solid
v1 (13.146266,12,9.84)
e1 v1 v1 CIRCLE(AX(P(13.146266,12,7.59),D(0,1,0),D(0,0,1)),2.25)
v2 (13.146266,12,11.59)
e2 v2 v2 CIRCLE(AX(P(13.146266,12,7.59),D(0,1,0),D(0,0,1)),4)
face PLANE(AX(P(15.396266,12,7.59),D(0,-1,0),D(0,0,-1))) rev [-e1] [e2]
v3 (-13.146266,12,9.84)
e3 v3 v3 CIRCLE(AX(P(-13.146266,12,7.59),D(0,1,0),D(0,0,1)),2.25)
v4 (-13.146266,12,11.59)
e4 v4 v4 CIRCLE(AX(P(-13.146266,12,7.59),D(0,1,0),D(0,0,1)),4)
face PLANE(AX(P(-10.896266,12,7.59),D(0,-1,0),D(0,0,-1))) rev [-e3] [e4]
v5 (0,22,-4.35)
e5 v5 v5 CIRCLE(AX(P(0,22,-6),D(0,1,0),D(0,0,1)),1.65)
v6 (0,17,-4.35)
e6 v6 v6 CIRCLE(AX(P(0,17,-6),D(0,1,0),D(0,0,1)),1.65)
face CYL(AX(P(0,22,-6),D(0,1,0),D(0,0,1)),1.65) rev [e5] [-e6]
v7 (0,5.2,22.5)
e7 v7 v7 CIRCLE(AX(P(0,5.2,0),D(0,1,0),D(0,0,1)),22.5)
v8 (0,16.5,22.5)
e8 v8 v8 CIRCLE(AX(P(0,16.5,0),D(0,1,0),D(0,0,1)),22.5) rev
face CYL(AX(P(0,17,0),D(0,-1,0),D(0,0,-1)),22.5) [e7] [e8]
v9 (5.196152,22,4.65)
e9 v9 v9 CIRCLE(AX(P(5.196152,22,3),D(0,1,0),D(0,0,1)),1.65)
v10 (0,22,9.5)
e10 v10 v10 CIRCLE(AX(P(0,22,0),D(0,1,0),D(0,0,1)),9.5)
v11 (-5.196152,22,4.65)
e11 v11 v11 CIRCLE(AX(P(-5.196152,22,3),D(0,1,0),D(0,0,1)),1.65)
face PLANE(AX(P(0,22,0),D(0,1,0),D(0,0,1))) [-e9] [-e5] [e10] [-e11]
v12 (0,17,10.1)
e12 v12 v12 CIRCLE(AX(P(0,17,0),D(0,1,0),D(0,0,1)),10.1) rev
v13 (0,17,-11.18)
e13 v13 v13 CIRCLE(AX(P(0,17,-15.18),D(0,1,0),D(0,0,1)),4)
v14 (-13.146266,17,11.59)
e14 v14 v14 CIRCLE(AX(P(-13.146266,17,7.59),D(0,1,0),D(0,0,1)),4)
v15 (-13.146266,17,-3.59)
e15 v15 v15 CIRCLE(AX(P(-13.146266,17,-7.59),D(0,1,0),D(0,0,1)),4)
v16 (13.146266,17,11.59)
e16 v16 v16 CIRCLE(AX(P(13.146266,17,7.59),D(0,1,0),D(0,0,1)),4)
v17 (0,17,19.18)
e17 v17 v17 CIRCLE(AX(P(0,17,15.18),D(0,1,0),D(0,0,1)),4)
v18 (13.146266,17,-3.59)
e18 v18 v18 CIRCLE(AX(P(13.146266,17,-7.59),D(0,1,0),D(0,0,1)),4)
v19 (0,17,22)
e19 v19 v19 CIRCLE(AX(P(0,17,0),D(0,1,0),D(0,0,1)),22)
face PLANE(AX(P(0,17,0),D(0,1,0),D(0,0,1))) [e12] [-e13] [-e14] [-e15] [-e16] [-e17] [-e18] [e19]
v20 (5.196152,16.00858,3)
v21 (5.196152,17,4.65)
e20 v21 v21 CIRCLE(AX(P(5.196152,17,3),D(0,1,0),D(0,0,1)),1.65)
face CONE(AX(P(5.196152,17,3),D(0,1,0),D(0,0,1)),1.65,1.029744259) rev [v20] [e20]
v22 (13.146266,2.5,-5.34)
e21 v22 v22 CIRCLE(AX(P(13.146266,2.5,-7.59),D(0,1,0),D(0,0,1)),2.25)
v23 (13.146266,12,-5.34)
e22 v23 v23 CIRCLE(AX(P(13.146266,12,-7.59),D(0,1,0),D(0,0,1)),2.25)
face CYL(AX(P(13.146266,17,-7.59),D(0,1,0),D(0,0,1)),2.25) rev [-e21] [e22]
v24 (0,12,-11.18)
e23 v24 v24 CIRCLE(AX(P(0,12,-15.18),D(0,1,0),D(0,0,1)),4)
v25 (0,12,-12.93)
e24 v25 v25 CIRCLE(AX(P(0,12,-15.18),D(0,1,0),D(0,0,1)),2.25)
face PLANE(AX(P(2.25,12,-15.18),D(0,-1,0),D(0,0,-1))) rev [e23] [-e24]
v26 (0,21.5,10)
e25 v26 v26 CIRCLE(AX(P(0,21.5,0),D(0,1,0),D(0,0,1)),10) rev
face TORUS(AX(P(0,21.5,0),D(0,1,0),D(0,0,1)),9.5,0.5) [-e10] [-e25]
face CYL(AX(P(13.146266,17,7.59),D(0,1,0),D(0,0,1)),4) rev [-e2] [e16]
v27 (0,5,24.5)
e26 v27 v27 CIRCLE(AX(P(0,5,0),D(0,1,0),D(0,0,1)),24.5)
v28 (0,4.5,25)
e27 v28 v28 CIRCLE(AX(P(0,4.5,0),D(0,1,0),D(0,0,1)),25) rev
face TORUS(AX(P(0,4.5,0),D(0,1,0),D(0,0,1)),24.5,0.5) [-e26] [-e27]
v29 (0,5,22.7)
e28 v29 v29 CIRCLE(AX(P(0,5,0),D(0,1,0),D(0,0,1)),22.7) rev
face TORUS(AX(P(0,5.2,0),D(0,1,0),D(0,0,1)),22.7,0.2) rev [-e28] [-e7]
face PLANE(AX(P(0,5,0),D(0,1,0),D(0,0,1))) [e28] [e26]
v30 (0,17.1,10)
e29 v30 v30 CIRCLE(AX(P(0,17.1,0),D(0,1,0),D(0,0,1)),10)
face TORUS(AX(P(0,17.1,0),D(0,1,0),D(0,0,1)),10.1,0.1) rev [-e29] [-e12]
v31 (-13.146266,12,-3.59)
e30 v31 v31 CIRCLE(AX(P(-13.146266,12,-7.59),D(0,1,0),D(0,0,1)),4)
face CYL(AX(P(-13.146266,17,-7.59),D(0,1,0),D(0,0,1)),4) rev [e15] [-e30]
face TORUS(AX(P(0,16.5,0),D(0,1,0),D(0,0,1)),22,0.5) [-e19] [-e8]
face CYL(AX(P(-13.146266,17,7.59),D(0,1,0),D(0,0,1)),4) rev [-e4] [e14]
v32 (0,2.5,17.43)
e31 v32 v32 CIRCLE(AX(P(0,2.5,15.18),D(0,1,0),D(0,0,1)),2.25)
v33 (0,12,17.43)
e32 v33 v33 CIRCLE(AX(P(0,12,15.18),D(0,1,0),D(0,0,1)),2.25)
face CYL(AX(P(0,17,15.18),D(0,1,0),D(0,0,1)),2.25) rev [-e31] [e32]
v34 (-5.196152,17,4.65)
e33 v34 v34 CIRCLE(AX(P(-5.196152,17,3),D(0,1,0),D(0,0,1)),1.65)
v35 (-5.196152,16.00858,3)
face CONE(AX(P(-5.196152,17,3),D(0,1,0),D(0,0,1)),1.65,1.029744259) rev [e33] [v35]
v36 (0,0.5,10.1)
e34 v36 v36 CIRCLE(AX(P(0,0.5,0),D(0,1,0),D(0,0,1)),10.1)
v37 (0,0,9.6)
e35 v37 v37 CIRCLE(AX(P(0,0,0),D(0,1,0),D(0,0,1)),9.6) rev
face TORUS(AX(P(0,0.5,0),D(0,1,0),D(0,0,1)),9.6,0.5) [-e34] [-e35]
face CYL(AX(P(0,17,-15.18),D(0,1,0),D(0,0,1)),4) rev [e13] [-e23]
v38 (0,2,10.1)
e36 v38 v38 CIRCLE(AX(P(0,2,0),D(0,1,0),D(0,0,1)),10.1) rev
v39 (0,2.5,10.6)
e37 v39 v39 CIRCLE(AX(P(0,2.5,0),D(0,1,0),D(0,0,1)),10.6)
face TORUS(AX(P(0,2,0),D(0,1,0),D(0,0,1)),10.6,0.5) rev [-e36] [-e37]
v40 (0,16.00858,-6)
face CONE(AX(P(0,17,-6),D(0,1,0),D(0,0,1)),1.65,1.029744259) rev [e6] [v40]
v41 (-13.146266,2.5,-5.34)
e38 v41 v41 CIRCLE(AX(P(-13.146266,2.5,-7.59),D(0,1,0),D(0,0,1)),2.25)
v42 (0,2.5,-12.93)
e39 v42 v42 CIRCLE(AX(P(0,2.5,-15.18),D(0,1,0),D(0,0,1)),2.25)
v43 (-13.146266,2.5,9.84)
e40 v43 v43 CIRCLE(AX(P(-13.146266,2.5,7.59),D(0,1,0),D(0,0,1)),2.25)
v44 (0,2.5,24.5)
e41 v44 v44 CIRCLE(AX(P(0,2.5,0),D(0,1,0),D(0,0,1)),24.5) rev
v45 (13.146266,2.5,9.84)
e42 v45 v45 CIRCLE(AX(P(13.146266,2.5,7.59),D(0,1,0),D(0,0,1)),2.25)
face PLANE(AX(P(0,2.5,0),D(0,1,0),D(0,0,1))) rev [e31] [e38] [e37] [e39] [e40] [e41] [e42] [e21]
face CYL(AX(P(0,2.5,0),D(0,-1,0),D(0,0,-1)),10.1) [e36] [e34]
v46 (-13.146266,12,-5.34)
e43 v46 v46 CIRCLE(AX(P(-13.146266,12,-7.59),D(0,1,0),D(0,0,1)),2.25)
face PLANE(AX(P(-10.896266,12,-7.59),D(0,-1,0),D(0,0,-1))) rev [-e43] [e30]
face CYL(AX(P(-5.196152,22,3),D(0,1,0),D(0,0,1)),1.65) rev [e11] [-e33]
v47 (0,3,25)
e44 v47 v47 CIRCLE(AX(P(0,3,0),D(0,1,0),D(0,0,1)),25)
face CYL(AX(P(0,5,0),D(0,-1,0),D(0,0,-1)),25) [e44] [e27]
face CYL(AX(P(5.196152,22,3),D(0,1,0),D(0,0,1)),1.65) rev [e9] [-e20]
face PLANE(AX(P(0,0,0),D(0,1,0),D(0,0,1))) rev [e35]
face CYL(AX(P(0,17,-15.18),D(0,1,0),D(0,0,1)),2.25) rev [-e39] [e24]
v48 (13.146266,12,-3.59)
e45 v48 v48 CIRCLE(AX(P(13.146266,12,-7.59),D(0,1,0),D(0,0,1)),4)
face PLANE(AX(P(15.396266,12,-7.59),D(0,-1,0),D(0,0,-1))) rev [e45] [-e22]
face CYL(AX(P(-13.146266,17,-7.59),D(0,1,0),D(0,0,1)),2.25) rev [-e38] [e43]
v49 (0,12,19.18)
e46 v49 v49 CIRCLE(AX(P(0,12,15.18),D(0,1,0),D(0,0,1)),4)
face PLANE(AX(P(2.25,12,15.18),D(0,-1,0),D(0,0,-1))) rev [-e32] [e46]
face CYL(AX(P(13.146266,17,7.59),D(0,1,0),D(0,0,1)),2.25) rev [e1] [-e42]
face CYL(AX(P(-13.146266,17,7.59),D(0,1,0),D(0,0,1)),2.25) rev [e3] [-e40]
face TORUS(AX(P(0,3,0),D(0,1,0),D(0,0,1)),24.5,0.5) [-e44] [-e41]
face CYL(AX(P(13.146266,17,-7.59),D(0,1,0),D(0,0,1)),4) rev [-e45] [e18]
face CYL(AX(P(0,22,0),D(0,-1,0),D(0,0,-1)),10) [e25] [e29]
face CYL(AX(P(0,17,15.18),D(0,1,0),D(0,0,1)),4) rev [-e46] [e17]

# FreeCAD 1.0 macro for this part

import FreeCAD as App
import Part
import Sketcher
from FreeCAD import Vector
Q = App.Units.Quantity


def edges_at(feature, points):
    """Names of the edges that pass closest to the given points."""
    edges = feature.Shape.Edges
    near = lambda p: min(range(len(edges)), key=lambda i: edges[i].distToShape(Part.Vertex(*p))[0])
    return sorted({f"Edge{near(p) + 1}" for p in points})


def add_polygon(sketch, points):
    """Adds a closed chain of lines whose ends are joined by coincident constraints."""
    first, n = sketch.GeometryCount, len(points)
    for a, b in zip(points, points[1:] + points[:1]):
        sketch.addGeometry(Part.LineSegment(App.Vector(*a, 0), App.Vector(*b, 0)), False)
    for i in range(n):
        sketch.addConstraint(Sketcher.Constraint("Coincident", first + i, 2, first + (i + 1) % n, 1))

doc = App.newDocument("Part")
body = doc.addObject("PartDesign::Body", "Body")

# Sketch on XZ plane
sketch1 = body.newObject("Sketcher::SketchObject", "Sketch")
sketch1.AttachmentSupport = (doc.getObject("XZ_Plane"), [""])
sketch1.MapMode = "FlatFace"
sketch1.addGeometry(Part.Circle(Vector(0, 0, 0), Vector(0, 0, 1), 10), False)
sketch1.addConstraint([
    Sketcher.Constraint("Coincident", 0, 3, -1, 1),
    Sketcher.Constraint("Diameter", 0, Q("20.2 mm")),
])
pad1 = body.newObject("PartDesign::Pad", "Pad")
pad1.Profile = sketch1
pad1.Length = 2.5
pad1.Reversed = True

# Sketch on XZ plane
sketch2 = body.newObject("Sketcher::SketchObject", "Sketch001")
sketch2.AttachmentSupport = (doc.getObject("XZ_Plane"), [""])
sketch2.MapMode = "FlatFace"
sketch2.AttachmentOffset = App.Placement(Vector(0, 0, -2.5), App.Rotation())
sketch2.addGeometry(Part.Circle(Vector(0, 0, 0), Vector(0, 0, 1), 25), False)
sketch2.addConstraint([
    Sketcher.Constraint("Coincident", 0, 3, -1, 1),
    Sketcher.Constraint("Diameter", 0, Q("50 mm")),
])
pad2 = body.newObject("PartDesign::Pad", "Pad001")
pad2.Profile = sketch2
pad2.Length = 2.5
pad2.Reversed = True

# Sketch on XZ plane
sketch3 = body.newObject("Sketcher::SketchObject", "Sketch002")
sketch3.AttachmentSupport = (doc.getObject("XZ_Plane"), [""])
sketch3.MapMode = "FlatFace"
sketch3.AttachmentOffset = App.Placement(Vector(0, 0, -5), App.Rotation())
sketch3.addGeometry(Part.Circle(Vector(0, 0, 0), Vector(0, 0, 1), 22), False)
sketch3.addConstraint([
    Sketcher.Constraint("Coincident", 0, 3, -1, 1),
    Sketcher.Constraint("Diameter", 0, Q("45 mm")),
])
pad3 = body.newObject("PartDesign::Pad", "Pad002")
pad3.Profile = sketch3
pad3.Length = 12
pad3.Reversed = True

# Sketch on XZ plane
sketch4 = body.newObject("Sketcher::SketchObject", "Sketch003")
sketch4.AttachmentSupport = (doc.getObject("XZ_Plane"), [""])
sketch4.MapMode = "FlatFace"
sketch4.AttachmentOffset = App.Placement(Vector(0, 0, -17), App.Rotation())
sketch4.addGeometry(Part.Circle(Vector(0, 0, 0), Vector(0, 0, 1), 10), False)
sketch4.addConstraint([
    Sketcher.Constraint("Coincident", 0, 3, -1, 1),
    Sketcher.Constraint("Diameter", 0, Q("20 mm")),
])
pad4 = body.newObject("PartDesign::Pad", "Pad003")
pad4.Profile = sketch4
pad4.Length = 5
pad4.Reversed = True

# Sketch on XZ plane
sketch5 = body.newObject("Sketcher::SketchObject", "Sketch004")
sketch5.AttachmentSupport = (doc.getObject("XZ_Plane"), [""])
sketch5.MapMode = "FlatFace"
sketch5.AttachmentOffset = App.Placement(Vector(0, 0, -17), App.Rotation())
sketch5.addGeometry(Part.Circle(Vector(0, -15.2, 0), Vector(0, 0, 1), 2.2), False)
sketch5.addConstraint([
    Sketcher.Constraint("PointOnObject", 0, 3, -2),
    Sketcher.Constraint("Diameter", 0, Q("4.5 mm")),
    Sketcher.Constraint("DistanceY", 0, 3, -1, 1, Q("15.18 mm")),
])
doc.recompute()
hole = body.newObject("PartDesign::Hole", "Hole")
hole.Profile = sketch5
hole.ThreadType = "None"
hole.Diameter = 4.5
hole.DepthType = "ThroughAll"
hole.HoleCutType = "Counterbore"
hole.HoleCutDiameter = 8
hole.HoleCutDepth = 5
hole.Reversed = True
doc.recompute()

polarpattern = body.newObject("PartDesign::PolarPattern", "PolarPattern")
polarpattern.Originals = [hole]
polarpattern.Axis = (doc.getObject("Y_Axis"), [""])
polarpattern.Angle = 360
polarpattern.Occurrences = 6
body.Tip = polarpattern

# Sketch on YZ plane
sketch6 = body.newObject("Sketcher::SketchObject", "Sketch005")
sketch6.AttachmentSupport = (doc.getObject("YZ_Plane"), [""])
sketch6.MapMode = "FlatFace"
add_polygon(sketch6, [(16, -6), (22, -6), (22, -4.3), (17, -4.3)])  # lines 0-3
sketch6.addGeometry(Part.LineSegment(Vector(22, -6, 0), Vector(16, -6, 0)), True)  # axis
sketch6.addConstraint([
    Sketcher.Constraint("Horizontal", 0),
    Sketcher.Constraint("Vertical", 1),
    Sketcher.Constraint("Horizontal", 2),
    Sketcher.Constraint("Horizontal", 4),
    Sketcher.Constraint("Coincident", 4, 1, 0, 2),
    Sketcher.Constraint("Equal", 0, 4),
    Sketcher.Constraint("DistanceX", 2, 2, 2, 1, Q("5 mm")),
    Sketcher.Constraint("Angle", 3, Q("-121 deg")),
    Sketcher.Constraint("DistanceX", -1, 1, 0, 2, Q("22 mm")),
    Sketcher.Constraint("DistanceY", 0, 2, -1, 1, Q("6 mm")),
    Sketcher.Constraint("DistanceY", 1, 1, 1, 2, Q("1.65 mm")),
])
groove = body.newObject("PartDesign::Groove", "Groove")
groove.Profile = sketch6
groove.ReferenceAxis = (sketch6, ["Axis0"])
groove.Angle = 360
doc.recompute()

polarpattern2 = body.newObject("PartDesign::PolarPattern", "PolarPattern001")
polarpattern2.Originals = [groove]
polarpattern2.Axis = (doc.getObject("Y_Axis"), [""])
polarpattern2.Angle = 360
polarpattern2.Occurrences = 3
body.Tip = polarpattern2
doc.recompute()

fillet = body.newObject("PartDesign::Fillet", "Fillet")
fillet.Base = (polarpattern2, edges_at(polarpattern2, [
    (-22.5, 17, 0),
    (-10.1, 0, 0),
    (-10.1, 2.5, 0),
    (-25, 2.5, 0),
    (-25, 5, 0),
]))
fillet.Radius = 0.5
doc.recompute()

fillet2 = body.newObject("PartDesign::Fillet", "Fillet001")
fillet2.Base = (fillet, edges_at(fillet, [(-22.5, 5, 0)]))
fillet2.Radius = 0.2
doc.recompute()

fillet3 = body.newObject("PartDesign::Fillet", "Fillet002")
fillet3.Base = (fillet2, edges_at(fillet2, [(-10, 17, 0)]))
fillet3.Radius = 0.1
doc.recompute()

fillet4 = body.newObject("PartDesign::Fillet", "Fillet003")
fillet4.Base = (fillet3, edges_at(fillet3, [(-10, 22, 0)]))
fillet4.Radius = 0.5

doc.recompute()
